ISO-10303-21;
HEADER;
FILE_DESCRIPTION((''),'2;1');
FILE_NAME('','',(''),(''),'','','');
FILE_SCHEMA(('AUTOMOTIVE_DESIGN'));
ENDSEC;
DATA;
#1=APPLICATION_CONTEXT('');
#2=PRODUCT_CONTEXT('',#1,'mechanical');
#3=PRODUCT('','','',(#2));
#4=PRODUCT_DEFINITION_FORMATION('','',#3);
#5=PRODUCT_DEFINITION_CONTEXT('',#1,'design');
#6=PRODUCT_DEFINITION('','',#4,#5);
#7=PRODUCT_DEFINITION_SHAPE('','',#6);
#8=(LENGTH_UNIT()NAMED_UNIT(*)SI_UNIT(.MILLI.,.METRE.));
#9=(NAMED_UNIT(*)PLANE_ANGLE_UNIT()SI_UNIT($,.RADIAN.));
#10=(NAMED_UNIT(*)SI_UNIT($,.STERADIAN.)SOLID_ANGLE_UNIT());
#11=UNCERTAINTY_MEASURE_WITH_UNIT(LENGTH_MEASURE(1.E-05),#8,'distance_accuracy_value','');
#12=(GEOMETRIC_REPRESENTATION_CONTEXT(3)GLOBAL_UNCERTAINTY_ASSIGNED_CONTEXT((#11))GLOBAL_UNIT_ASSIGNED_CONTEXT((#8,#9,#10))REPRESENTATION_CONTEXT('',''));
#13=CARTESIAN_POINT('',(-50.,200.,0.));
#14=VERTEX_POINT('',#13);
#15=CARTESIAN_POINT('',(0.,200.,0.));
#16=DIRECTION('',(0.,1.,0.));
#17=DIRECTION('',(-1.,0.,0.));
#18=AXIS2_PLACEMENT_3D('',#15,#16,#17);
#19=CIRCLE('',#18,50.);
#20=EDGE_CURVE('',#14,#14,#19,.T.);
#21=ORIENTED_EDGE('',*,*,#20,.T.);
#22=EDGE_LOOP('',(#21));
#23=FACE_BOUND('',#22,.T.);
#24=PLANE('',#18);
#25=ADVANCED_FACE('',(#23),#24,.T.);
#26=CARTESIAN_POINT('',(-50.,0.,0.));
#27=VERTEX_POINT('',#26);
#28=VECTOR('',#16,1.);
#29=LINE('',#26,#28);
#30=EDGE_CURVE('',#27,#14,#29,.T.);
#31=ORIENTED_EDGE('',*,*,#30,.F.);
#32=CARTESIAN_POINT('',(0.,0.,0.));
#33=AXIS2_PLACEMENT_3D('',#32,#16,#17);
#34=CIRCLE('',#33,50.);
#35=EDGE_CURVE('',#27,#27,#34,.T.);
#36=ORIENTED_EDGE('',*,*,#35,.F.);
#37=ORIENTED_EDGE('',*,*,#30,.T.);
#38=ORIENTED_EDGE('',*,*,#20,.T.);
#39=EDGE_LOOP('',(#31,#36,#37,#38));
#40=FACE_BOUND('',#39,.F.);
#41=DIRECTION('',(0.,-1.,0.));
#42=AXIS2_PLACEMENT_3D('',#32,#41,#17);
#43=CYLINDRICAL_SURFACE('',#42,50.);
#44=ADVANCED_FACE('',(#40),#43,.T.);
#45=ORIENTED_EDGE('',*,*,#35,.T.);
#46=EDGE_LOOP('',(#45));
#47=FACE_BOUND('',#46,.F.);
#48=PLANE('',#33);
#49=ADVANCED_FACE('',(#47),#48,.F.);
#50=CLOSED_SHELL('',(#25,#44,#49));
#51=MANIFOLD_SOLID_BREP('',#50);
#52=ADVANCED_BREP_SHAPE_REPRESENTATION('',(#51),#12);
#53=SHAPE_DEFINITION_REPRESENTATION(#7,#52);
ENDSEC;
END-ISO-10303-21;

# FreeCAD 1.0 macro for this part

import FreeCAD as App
import Part
import Sketcher
from FreeCAD import Vector

doc = App.newDocument("Part")
body = doc.addObject("PartDesign::Body", "Body")

# Sketch on XZ plane
sketch1 = doc.addObject("Sketcher::SketchObject", "Sketch")
body.addObject(sketch1)
sketch1.AttachmentSupport = (doc.XZ_Plane, [""])
sketch1.MapMode = "FlatFace"
sketch1.addGeometry(Part.Circle(Vector(0, 0, 0), Vector(0, 0, 1), 50), False)
sketch1.addConstraint([
    Sketcher.Constraint("Coincident", 0, 3, -1, 1),
    Sketcher.Constraint("Diameter", 0, 100.0),
])
pad1 = doc.addObject("PartDesign::Pad", "Pad")
body.addObject(pad1)
pad1.Profile = sketch1
pad1.Length = 200
pad1.Reversed = True

doc.recompute()
